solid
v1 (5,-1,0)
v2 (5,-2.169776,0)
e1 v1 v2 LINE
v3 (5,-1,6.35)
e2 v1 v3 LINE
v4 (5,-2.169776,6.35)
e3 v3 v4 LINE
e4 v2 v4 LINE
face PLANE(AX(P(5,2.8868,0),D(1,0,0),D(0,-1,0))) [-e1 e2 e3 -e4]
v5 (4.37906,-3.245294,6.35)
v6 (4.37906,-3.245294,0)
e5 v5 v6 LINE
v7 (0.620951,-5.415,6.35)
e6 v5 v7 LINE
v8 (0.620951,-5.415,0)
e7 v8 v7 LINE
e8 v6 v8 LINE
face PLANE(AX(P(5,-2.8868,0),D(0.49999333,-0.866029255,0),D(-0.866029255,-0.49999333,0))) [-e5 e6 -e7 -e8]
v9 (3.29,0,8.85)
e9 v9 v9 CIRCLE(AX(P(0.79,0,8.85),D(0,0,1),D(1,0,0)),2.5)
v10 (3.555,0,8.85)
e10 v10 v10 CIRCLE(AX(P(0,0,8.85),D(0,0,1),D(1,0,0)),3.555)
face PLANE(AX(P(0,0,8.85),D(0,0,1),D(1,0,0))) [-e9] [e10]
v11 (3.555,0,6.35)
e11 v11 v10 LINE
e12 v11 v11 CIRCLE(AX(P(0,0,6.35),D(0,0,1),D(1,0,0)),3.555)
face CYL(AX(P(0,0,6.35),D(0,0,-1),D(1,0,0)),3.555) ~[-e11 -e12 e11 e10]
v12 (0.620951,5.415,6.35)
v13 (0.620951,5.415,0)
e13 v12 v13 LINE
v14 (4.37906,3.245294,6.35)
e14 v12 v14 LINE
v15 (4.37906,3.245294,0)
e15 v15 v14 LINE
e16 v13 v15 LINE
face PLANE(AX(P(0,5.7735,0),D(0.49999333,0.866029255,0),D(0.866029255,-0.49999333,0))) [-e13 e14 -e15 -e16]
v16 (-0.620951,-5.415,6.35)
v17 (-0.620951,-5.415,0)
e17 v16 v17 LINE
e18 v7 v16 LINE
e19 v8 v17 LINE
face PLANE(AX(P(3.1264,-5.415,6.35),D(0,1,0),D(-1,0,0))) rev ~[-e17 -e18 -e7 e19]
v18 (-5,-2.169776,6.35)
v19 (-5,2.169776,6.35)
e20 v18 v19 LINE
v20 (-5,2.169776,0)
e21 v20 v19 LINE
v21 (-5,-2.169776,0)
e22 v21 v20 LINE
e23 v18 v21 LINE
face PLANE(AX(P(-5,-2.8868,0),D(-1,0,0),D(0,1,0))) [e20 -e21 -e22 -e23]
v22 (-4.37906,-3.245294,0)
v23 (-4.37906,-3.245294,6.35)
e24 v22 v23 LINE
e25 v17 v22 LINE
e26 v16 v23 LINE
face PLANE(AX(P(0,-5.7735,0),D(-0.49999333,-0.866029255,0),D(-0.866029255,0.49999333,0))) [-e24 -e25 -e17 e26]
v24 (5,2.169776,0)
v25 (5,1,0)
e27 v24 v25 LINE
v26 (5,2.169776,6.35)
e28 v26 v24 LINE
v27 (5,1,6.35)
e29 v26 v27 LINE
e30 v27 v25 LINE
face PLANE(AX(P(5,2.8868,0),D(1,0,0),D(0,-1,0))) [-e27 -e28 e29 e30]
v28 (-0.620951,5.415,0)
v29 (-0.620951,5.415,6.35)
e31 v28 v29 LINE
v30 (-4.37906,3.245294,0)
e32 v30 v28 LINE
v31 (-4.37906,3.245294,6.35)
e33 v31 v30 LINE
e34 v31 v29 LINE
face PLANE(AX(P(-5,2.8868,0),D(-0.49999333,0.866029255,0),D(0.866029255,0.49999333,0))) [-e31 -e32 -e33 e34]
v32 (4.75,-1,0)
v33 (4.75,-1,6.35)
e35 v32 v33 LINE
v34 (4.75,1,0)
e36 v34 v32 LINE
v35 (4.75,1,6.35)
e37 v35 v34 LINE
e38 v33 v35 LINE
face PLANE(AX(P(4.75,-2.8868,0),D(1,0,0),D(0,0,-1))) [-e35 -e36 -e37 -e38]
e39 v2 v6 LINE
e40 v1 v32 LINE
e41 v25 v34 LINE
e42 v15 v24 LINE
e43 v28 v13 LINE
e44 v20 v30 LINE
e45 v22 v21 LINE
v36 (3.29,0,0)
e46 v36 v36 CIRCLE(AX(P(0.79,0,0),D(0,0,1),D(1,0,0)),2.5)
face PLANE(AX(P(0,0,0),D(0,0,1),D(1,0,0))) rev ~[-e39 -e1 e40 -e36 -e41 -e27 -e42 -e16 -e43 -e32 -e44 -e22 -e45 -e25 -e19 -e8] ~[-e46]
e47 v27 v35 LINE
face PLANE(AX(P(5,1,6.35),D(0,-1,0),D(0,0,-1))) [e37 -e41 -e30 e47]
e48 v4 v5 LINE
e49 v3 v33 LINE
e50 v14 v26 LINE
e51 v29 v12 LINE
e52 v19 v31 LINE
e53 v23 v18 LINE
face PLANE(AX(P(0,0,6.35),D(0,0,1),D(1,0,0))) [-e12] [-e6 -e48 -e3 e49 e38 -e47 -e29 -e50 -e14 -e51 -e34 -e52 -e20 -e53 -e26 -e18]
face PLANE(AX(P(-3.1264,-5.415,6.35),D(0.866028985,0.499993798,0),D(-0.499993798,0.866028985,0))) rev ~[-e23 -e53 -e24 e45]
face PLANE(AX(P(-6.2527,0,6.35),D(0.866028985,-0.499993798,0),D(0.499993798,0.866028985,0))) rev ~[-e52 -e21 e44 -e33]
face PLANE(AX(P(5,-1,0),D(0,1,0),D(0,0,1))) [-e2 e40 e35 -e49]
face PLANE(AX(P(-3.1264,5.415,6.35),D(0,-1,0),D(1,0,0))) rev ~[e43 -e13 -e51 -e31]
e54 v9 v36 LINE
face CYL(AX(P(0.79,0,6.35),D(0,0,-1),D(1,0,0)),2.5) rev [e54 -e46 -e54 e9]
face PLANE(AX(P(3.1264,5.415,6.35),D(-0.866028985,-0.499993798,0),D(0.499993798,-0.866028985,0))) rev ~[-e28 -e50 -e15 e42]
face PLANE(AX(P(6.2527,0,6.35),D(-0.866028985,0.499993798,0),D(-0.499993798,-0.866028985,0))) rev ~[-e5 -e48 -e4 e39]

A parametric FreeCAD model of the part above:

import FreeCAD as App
import Part
import Sketcher
from FreeCAD import Vector
Q = App.Units.Quantity


def add_polygon(sketch, points):
    """Adds a closed chain of lines whose ends are joined by coincident constraints."""
    first, n = sketch.GeometryCount, len(points)
    for a, b in zip(points, points[1:] + points[:1]):
        sketch.addGeometry(Part.LineSegment(App.Vector(*a, 0), App.Vector(*b, 0)), False)
    for i in range(n):
        sketch.addConstraint(Sketcher.Constraint("Coincident", first + i, 2, first + (i + 1) % n, 1))

doc = App.newDocument("Part")
body = doc.addObject("PartDesign::Body", "Body")

sketch1 = body.newObject("Sketcher::SketchObject", "Sketch")
sketch1.AttachmentSupport = (doc.getObject("XY_Plane"), [""])
sketch1.MapMode = "FlatFace"
add_polygon(sketch1, [(5, 2.9), (0, 5.8), (-5, 2.9), (-5, -2.9), (0, -5.8), (5, -2.9)])
sketch1.addGeometry(Part.Circle(Vector(0.8, 0, 0), Vector(0, 0, 1), 2.5), False)
sketch1.addConstraint(Sketcher.Constraint("Vertical", 2))
sketch1.addConstraint(Sketcher.Constraint("Vertical", 5))
sketch1.addConstraint(Sketcher.Constraint("Symmetric", 0, 2, 3, 2, -1, 1))
sketch1.addConstraint(Sketcher.Constraint("Symmetric", 1, 2, 4, 2, -1, 1))
sketch1.addConstraint(Sketcher.Constraint("PointOnObject", 6, 3, -1))
sketch1.addConstraint(Sketcher.Constraint("PointOnObject", 0, 2, -2))
sketch1.addConstraint(Sketcher.Constraint("Parallel", 0, 3))
sketch1.addConstraint(Sketcher.Constraint("Horizontal", 2, 2, 4, 2))
sketch1.addConstraint(Sketcher.Constraint("Diameter", 6, Q("5 mm")))
sketch1.addConstraint(Sketcher.Constraint("DistanceX", 1, 2, -1, 1, Q("5 mm")))
sketch1.addConstraint(Sketcher.Constraint("DistanceX", -1, 1, 6, 3, Q("0.79 mm")))
sketch1.addConstraint(Sketcher.Constraint("Angle", 0, Q("150.0004 deg")))
sketch1.addConstraint(Sketcher.Constraint("DistanceY", 2, 2, 2, 1, Q("5.7736 mm")))
pad1 = body.newObject("PartDesign::Pad", "Pad")
pad1.Profile = sketch1
pad1.Length = 6.35

sketch2 = body.newObject("Sketcher::SketchObject", "Sketch001")
sketch2.AttachmentSupport = (doc.getObject("XY_Plane"), [""])
sketch2.MapMode = "FlatFace"
sketch2.AttachmentOffset = App.Placement(Vector(0, 0, 6.35), App.Rotation())
sketch2.addGeometry(Part.Circle(Vector(0, 0, 0), Vector(0, 0, 1), 3.6), False)
sketch2.addGeometry(Part.Circle(Vector(0.8, 0, 0), Vector(0, 0, 1), 2.5), False)
sketch2.addConstraint(Sketcher.Constraint("Coincident", 0, 3, -1, 1))
sketch2.addConstraint(Sketcher.Constraint("PointOnObject", 1, 3, -1))
sketch2.addConstraint(Sketcher.Constraint("Diameter", 1, Q("5 mm")))
sketch2.addConstraint(Sketcher.Constraint("Diameter", 0, Q("7.11 mm")))
sketch2.addConstraint(Sketcher.Constraint("DistanceX", -1, 1, 1, 3, Q("0.79 mm")))
pad2 = body.newObject("PartDesign::Pad", "Pad001")
pad2.Profile = sketch2
pad2.Length = 2.5

sketch3 = body.newObject("Sketcher::SketchObject", "Sketch002")
sketch3.AttachmentSupport = (doc.getObject("YZ_Plane"), [""])
sketch3.MapMode = "FlatFace"
sketch3.AttachmentOffset = App.Placement(Vector(0, 0, 5), App.Rotation())
add_polygon(sketch3, [(-1, 0), (1, 0), (1, 6.3), (-1, 6.3)])
sketch3.addConstraint(Sketcher.Constraint("Horizontal", 0))
sketch3.addConstraint(Sketcher.Constraint("Vertical", 1))
sketch3.addConstraint(Sketcher.Constraint("Horizontal", 2))
sketch3.addConstraint(Sketcher.Constraint("Vertical", 3))
sketch3.addConstraint(Sketcher.Constraint("Symmetric", 0, 2, 3, 2, -1, 1))
sketch3.addConstraint(Sketcher.Constraint("DistanceX", 0, 1, 0, 2, Q("2 mm")))
sketch3.addConstraint(Sketcher.Constraint("DistanceY", 1, 1, 1, 2, Q("6.35 mm")))
pocket1 = body.newObject("PartDesign::Pocket", "Pocket")
pocket1.Profile = sketch3
pocket1.Length = 0.25

sketch4 = body.newObject("Sketcher::SketchObject", "Sketch003")
sketch4.AttachmentSupport = (doc.getObject("XY_Plane"), [""])
sketch4.MapMode = "FlatFace"
sketch4.AttachmentOffset = App.Placement(Vector(0, 0, 6.35), App.Rotation())
add_polygon(sketch4, [(7.7, 2.7), (3.1, 5.4), (6.3, 0)])
add_polygon(sketch4, [(-3.1, 5.4), (3.1, 5.4), (0, 7.4)])
add_polygon(sketch4, [(7.4, -3.9), (6.3, 0), (3.1, -5.4)])
add_polygon(sketch4, [(-6.3, 0), (-3.1, 5.4), (-7, 5.2)])
add_polygon(sketch4, [(-0.8, -8.4), (3.1, -5.4), (-3.1, -5.4)])
add_polygon(sketch4, [(-3.1, -5.4), (-6.3, 0), (-7.6, -4.7)])
sketch4.addConstraint(Sketcher.Constraint("Horizontal", 3))
sketch4.addConstraint(Sketcher.Constraint("Horizontal", 13))
sketch4.addConstraint(Sketcher.Constraint("Coincident", 3, 2, 0, 2))
sketch4.addConstraint(Sketcher.Constraint("Coincident", 6, 2, 1, 2))
sketch4.addConstraint(Sketcher.Constraint("Coincident", 9, 2, 5, 2))
sketch4.addConstraint(Sketcher.Constraint("Coincident", 12, 2, 7, 2))
sketch4.addConstraint(Sketcher.Constraint("Coincident", 15, 2, 11, 2))
sketch4.addConstraint(Sketcher.Constraint("Coincident", 17, 2, 13, 2))
sketch4.addConstraint(Sketcher.Constraint("Symmetric", 5, 2, 7, 2, -1, 1))
sketch4.addConstraint(Sketcher.Constraint("Symmetric", 1, 2, 11, 2, -1, 1))
sketch4.addConstraint(Sketcher.Constraint("PointOnObject", 1, 2, -1))
sketch4.addConstraint(Sketcher.Constraint("PointOnObject", 4, 2, -2))
sketch4.addConstraint(Sketcher.Constraint("Perpendicular", 0, 7))
sketch4.addConstraint(Sketcher.Constraint("Perpendicular", 12, 14))
sketch4.addConstraint(Sketcher.Constraint("Parallel", 1, 15))
sketch4.addConstraint(Sketcher.Constraint("Vertical", 3, 2, 7, 2))
sketch4.addConstraint(Sketcher.Constraint("Angle", 0, Q("150.0003 deg")))
sketch4.addConstraint(Sketcher.Constraint("DistanceY", 7, 2, 0, 2, Q("10.83 mm")))
sketch4.addConstraint(Sketcher.Constraint("Angle", 2, Q("61.4091 deg")))
sketch4.addConstraint(Sketcher.Constraint("Angle", 6, Q("105.7304 deg")))
sketch4.addConstraint(Sketcher.Constraint("Angle", 11, Q("-81.6309 deg")))
sketch4.addConstraint(Sketcher.Constraint("DistanceX", 7, 2, 8, 2, Q("4.23 mm")))
sketch4.addConstraint(Sketcher.Constraint("Distance", 10, Q("3.898 mm")))
sketch4.addConstraint(Sketcher.Constraint("Distance", 14, Q("3.834 mm")))
sketch4.addConstraint(Sketcher.Constraint("DistanceX", 3, 1, 3, 2, Q("6.2528 mm")))
sketch4.addConstraint(Sketcher.Constraint("DistanceX", 16, 2, -1, 1, Q("7.617 mm")))
sketch4.addConstraint(Sketcher.Constraint("DistanceY", 16, 2, -1, 1, Q("4.738 mm")))
sketch4.addConstraint(Sketcher.Constraint("Distance", 4, Q("3.7197 mm")))
pocket2 = body.newObject("PartDesign::Pocket", "Pocket001")
pocket2.Profile = sketch4
pocket2.Length = 6.35

doc.recompute()
